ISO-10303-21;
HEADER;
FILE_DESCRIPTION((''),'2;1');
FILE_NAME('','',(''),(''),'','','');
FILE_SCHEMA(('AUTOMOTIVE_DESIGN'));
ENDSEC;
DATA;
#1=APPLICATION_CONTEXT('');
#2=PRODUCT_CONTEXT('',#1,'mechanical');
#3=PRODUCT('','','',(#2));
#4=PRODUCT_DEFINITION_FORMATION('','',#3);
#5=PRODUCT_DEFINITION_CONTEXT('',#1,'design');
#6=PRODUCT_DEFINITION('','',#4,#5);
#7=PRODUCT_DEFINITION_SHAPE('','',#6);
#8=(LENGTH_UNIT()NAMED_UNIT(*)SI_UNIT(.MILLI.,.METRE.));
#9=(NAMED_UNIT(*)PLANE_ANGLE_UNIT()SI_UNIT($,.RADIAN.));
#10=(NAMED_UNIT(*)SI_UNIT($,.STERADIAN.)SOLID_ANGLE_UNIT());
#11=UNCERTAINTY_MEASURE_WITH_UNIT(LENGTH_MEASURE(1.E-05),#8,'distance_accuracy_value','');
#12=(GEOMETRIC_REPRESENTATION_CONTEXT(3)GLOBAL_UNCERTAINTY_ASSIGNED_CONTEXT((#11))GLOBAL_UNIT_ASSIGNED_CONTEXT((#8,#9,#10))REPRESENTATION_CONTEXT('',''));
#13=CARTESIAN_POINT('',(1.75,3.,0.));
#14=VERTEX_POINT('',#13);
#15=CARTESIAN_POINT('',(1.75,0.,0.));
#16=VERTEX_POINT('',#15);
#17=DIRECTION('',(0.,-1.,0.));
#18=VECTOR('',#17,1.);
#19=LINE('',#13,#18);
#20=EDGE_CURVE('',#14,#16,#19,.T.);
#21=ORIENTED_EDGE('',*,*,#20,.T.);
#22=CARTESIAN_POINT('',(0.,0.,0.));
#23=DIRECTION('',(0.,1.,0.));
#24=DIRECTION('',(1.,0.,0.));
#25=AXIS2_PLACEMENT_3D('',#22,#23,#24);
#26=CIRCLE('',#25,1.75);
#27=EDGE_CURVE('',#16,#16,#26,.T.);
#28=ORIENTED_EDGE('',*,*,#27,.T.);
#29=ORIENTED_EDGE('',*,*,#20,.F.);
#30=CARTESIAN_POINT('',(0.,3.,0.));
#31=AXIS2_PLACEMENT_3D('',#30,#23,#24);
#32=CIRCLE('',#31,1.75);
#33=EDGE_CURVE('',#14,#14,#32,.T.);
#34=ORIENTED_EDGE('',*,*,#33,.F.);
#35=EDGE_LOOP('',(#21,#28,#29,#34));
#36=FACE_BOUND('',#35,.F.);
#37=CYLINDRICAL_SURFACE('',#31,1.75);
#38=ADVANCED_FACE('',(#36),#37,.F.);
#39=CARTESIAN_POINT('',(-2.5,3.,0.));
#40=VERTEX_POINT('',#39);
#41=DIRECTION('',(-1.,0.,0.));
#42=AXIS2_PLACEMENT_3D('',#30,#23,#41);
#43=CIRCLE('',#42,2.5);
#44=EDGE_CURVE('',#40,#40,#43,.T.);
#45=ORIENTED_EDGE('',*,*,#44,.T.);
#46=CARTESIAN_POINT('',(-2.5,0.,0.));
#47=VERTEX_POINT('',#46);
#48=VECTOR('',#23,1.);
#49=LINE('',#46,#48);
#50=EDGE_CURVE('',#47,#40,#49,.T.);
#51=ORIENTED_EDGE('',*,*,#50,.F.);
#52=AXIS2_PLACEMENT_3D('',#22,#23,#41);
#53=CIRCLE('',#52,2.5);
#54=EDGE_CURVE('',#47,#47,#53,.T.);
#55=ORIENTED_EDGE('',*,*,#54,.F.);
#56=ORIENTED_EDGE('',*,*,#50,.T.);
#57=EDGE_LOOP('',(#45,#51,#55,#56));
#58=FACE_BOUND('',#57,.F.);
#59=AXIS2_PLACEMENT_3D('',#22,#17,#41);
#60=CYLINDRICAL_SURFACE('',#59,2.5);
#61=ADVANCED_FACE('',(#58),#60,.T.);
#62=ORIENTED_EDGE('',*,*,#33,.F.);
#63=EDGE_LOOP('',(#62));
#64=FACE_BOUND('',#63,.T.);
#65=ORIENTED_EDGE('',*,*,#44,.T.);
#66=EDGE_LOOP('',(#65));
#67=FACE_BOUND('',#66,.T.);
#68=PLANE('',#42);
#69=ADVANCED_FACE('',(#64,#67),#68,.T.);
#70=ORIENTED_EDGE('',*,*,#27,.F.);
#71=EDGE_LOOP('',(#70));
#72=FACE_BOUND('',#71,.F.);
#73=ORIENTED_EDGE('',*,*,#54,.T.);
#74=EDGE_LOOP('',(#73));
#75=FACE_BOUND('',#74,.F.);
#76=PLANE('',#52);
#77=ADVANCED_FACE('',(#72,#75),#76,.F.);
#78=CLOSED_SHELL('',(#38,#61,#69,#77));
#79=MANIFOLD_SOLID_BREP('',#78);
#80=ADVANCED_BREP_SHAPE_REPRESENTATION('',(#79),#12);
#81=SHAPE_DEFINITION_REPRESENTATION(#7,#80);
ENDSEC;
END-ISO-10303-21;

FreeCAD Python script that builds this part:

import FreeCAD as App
import Part
import Sketcher

V = App.Vector
Q = App.Units.Quantity

doc = App.newDocument("Part")
body = doc.addObject("PartDesign::Body", "Body")

# Sketch on XZ plane
sketch1 = doc.addObject("Sketcher::SketchObject", "Sketch")
body.addObject(sketch1)
sketch1.AttachmentSupport = (doc.XZ_Plane, [""])
sketch1.MapMode = "FlatFace"
sketch1.addGeometry(Part.Circle(V(0, 0, 0), V(0, 0, 1), 2.5), False)
sketch1.addConstraint(Sketcher.Constraint("Coincident", 0, 3, -1, 1))
sketch1.addConstraint(Sketcher.Constraint("Diameter", 0, Q("5 mm")))
pad1 = doc.addObject("PartDesign::Pad", "Pad")
body.addObject(pad1)
pad1.Profile = sketch1
pad1.Length = 3
pad1.Reversed = True

# Sketch on XZ plane
sketch2 = doc.addObject("Sketcher::SketchObject", "Sketch001")
body.addObject(sketch2)
sketch2.AttachmentSupport = (doc.XZ_Plane, [""])
sketch2.MapMode = "FlatFace"
sketch2.AttachmentOffset = App.Placement(V(0, 0, -3), App.Rotation())
sketch2.addGeometry(Part.Circle(V(0, 0, 0), V(0, 0, 1), 1.8), False)
sketch2.addConstraint(Sketcher.Constraint("Coincident", 0, 3, -1, 1))
sketch2.addConstraint(Sketcher.Constraint("Diameter", 0, Q("3.5 mm")))
pocket1 = doc.addObject("PartDesign::Pocket", "Pocket")
body.addObject(pocket1)
pocket1.Profile = sketch2
pocket1.Length = 3
pocket1.Reversed = True

doc.recompute()
